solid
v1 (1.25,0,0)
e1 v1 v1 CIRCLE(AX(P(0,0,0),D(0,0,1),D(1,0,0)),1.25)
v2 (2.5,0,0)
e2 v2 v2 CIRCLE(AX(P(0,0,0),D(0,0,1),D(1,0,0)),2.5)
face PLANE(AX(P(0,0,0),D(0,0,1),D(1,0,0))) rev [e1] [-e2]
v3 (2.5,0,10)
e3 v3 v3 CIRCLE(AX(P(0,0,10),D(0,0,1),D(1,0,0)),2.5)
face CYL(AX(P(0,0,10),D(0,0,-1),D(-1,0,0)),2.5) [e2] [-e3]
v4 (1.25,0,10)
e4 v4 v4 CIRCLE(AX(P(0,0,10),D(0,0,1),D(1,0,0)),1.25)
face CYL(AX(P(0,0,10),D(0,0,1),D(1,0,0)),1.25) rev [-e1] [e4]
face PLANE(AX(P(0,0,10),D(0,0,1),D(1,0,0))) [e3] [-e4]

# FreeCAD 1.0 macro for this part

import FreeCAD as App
import Part
import Sketcher
Q = App.Units.Quantity

doc = App.newDocument("Part")
body = doc.addObject("PartDesign::Body", "Body")

sketch1 = body.newObject("Sketcher::SketchObject", "Sketch")
sketch1.AttachmentSupport = (doc.getObject("XY_Plane"), [""])
sketch1.MapMode = "FlatFace"
sketch1.addGeometry(Part.Circle(App.Vector(0, 0, 0), App.Vector(0, 0, 1), 2.5), False)
sketch1.addConstraint([
    Sketcher.Constraint("Coincident", 0, 3, -1, 1),
    Sketcher.Constraint("Diameter", 0, Q("5 mm")),
])
pad1 = body.newObject("PartDesign::Pad", "Pad")
pad1.Profile = sketch1
pad1.Length = 10

sketch2 = body.newObject("Sketcher::SketchObject", "Sketch001")
sketch2.AttachmentSupport = (doc.getObject("XY_Plane"), [""])
sketch2.MapMode = "FlatFace"
sketch2.AttachmentOffset = App.Placement(App.Vector(0, 0, 10), App.Rotation())
sketch2.addGeometry(Part.Circle(App.Vector(0, 0, 0), App.Vector(0, 0, 1), 1.2), False)
sketch2.addConstraint([
    Sketcher.Constraint("Coincident", 0, 3, -1, 1),
    Sketcher.Constraint("Diameter", 0, Q("2.5 mm")),
])
doc.recompute()
hole = body.newObject("PartDesign::Hole", "Hole")
hole.Profile = sketch2
hole.ThreadType = "None"
hole.Diameter = 2.5
hole.DepthType = "ThroughAll"

doc.recompute()
